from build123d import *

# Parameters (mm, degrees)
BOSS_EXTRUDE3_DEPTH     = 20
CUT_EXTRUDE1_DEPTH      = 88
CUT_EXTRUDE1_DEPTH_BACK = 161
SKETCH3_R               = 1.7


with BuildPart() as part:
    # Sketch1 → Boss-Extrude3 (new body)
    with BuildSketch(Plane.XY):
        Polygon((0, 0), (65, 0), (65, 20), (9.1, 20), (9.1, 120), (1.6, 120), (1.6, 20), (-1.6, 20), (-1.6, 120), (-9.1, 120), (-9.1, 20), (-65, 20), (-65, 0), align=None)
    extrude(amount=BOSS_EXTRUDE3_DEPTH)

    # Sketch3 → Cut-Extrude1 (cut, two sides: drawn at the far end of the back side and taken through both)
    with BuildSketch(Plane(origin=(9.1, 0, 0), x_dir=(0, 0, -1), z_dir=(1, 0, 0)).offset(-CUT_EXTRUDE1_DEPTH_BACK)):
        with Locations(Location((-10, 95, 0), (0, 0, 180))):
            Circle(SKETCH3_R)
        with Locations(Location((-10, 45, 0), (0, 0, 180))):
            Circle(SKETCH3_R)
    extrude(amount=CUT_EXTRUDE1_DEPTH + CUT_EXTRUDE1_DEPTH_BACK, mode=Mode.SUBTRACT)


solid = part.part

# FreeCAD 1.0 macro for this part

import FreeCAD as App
import Part
import Sketcher

V = App.Vector

doc = App.newDocument("Part")
body = doc.addObject("PartDesign::Body", "Body")

sketch1 = body.newObject("Sketcher::SketchObject", "Sketch")
sketch1.AttachmentSupport = (doc.getObject("XY_Plane"), [""])
sketch1.MapMode = "FlatFace"
sketch1.addGeometry([
    Part.LineSegment(V(65, 0, 0), V(65, 20, 0)),
    Part.LineSegment(V(65, 20, 0), V(9.1, 20, 0)),
    Part.LineSegment(V(9.1, 20, 0), V(9.1, 120, 0)),
    Part.LineSegment(V(9.1, 120, 0), V(1.6, 120, 0)),
    Part.LineSegment(V(1.6, 120, 0), V(1.6, 20, 0)),
    Part.LineSegment(V(1.6, 20, 0), V(-1.6, 20, 0)),
    Part.LineSegment(V(-1.6, 20, 0), V(-1.6, 120, 0)),
    Part.LineSegment(V(-1.6, 120, 0), V(-9.1, 120, 0)),
    Part.LineSegment(V(-9.1, 120, 0), V(-9.1, 20, 0)),
    Part.LineSegment(V(-9.1, 20, 0), V(-65, 20, 0)),
    Part.LineSegment(V(-65, 20, 0), V(-65, 0, 0)),
    Part.LineSegment(V(-65, 0, 0), V(65, 0, 0)),
], False)
sketch1.addConstraint([
    Sketcher.Constraint("Coincident", 0, 2, 1, 1),
    Sketcher.Constraint("Coincident", 1, 2, 2, 1),
    Sketcher.Constraint("Coincident", 2, 2, 3, 1),
    Sketcher.Constraint("Coincident", 3, 2, 4, 1),
    Sketcher.Constraint("Coincident", 4, 2, 5, 1),
    Sketcher.Constraint("Coincident", 5, 2, 6, 1),
    Sketcher.Constraint("Coincident", 6, 2, 7, 1),
    Sketcher.Constraint("Coincident", 7, 2, 8, 1),
    Sketcher.Constraint("Coincident", 8, 2, 9, 1),
    Sketcher.Constraint("Coincident", 9, 2, 10, 1),
    Sketcher.Constraint("Coincident", 10, 2, 11, 1),
    Sketcher.Constraint("Coincident", 11, 2, 0, 1),
    Sketcher.Constraint("Vertical", 0),
    Sketcher.Constraint("Horizontal", 1),
    Sketcher.Constraint("Vertical", 2),
    Sketcher.Constraint("Horizontal", 3),
    Sketcher.Constraint("Vertical", 4),
    Sketcher.Constraint("Horizontal", 5),
    Sketcher.Constraint("Vertical", 6),
    Sketcher.Constraint("Horizontal", 7),
    Sketcher.Constraint("Vertical", 8),
    Sketcher.Constraint("Horizontal", 9),
    Sketcher.Constraint("Vertical", 10),
    Sketcher.Constraint("Horizontal", 11),
    Sketcher.Constraint("Symmetric", 10, 2, 11, 2, -1, 1),
    Sketcher.Constraint("Symmetric", 3, 2, 6, 2, -2),
    Sketcher.Constraint("Symmetric", 1, 2, 8, 2, -2),
    Sketcher.Constraint("Horizontal", 1, 2, 4, 2),
    Sketcher.Constraint("DistanceX", 11, 1, 11, 2, 130.0),
    Sketcher.Constraint("DistanceY", 0, 1, 0, 2, 20.0),
    Sketcher.Constraint("DistanceY", 2, 1, 2, 2, 100.0),
    Sketcher.Constraint("DistanceX", 1, 2, 1, 1, 55.9),
    Sketcher.Constraint("DistanceX", 3, 2, 3, 1, 7.5),
])
pad1 = body.newObject("PartDesign::Pad", "Pad")
pad1.Profile = sketch1
pad1.Length = 20

sketch2 = body.newObject("Sketcher::SketchObject", "Sketch001")
sketch2.AttachmentSupport = (doc.getObject("YZ_Plane"), [""])
sketch2.MapMode = "FlatFace"
sketch2.AttachmentOffset = App.Placement(V(0, 0, 9.1), App.Rotation())
sketch2.addGeometry([
    Part.Circle(V(95, 10, 0), V(0, 0, 1), 1.7),
    Part.Circle(V(45, 10, 0), V(0, 0, 1), 1.7),
], False)
sketch2.addConstraint([
    Sketcher.Constraint("Equal", 0, 1),
    Sketcher.Constraint("Horizontal", 0, 3, 1, 3),
    Sketcher.Constraint("Diameter", 0, 3.4),
    Sketcher.Constraint("DistanceX", -1, 1, 0, 3, 95.0),
    Sketcher.Constraint("DistanceY", -1, 1, 0, 3, 10.0),
    Sketcher.Constraint("DistanceX", -1, 1, 1, 3, 45.0),
])
pocket1 = body.newObject("PartDesign::Pocket", "Pocket")
pocket1.Profile = sketch2
pocket1.Type = "ThroughAll"
pocket1.Midplane = True

doc.recompute()
